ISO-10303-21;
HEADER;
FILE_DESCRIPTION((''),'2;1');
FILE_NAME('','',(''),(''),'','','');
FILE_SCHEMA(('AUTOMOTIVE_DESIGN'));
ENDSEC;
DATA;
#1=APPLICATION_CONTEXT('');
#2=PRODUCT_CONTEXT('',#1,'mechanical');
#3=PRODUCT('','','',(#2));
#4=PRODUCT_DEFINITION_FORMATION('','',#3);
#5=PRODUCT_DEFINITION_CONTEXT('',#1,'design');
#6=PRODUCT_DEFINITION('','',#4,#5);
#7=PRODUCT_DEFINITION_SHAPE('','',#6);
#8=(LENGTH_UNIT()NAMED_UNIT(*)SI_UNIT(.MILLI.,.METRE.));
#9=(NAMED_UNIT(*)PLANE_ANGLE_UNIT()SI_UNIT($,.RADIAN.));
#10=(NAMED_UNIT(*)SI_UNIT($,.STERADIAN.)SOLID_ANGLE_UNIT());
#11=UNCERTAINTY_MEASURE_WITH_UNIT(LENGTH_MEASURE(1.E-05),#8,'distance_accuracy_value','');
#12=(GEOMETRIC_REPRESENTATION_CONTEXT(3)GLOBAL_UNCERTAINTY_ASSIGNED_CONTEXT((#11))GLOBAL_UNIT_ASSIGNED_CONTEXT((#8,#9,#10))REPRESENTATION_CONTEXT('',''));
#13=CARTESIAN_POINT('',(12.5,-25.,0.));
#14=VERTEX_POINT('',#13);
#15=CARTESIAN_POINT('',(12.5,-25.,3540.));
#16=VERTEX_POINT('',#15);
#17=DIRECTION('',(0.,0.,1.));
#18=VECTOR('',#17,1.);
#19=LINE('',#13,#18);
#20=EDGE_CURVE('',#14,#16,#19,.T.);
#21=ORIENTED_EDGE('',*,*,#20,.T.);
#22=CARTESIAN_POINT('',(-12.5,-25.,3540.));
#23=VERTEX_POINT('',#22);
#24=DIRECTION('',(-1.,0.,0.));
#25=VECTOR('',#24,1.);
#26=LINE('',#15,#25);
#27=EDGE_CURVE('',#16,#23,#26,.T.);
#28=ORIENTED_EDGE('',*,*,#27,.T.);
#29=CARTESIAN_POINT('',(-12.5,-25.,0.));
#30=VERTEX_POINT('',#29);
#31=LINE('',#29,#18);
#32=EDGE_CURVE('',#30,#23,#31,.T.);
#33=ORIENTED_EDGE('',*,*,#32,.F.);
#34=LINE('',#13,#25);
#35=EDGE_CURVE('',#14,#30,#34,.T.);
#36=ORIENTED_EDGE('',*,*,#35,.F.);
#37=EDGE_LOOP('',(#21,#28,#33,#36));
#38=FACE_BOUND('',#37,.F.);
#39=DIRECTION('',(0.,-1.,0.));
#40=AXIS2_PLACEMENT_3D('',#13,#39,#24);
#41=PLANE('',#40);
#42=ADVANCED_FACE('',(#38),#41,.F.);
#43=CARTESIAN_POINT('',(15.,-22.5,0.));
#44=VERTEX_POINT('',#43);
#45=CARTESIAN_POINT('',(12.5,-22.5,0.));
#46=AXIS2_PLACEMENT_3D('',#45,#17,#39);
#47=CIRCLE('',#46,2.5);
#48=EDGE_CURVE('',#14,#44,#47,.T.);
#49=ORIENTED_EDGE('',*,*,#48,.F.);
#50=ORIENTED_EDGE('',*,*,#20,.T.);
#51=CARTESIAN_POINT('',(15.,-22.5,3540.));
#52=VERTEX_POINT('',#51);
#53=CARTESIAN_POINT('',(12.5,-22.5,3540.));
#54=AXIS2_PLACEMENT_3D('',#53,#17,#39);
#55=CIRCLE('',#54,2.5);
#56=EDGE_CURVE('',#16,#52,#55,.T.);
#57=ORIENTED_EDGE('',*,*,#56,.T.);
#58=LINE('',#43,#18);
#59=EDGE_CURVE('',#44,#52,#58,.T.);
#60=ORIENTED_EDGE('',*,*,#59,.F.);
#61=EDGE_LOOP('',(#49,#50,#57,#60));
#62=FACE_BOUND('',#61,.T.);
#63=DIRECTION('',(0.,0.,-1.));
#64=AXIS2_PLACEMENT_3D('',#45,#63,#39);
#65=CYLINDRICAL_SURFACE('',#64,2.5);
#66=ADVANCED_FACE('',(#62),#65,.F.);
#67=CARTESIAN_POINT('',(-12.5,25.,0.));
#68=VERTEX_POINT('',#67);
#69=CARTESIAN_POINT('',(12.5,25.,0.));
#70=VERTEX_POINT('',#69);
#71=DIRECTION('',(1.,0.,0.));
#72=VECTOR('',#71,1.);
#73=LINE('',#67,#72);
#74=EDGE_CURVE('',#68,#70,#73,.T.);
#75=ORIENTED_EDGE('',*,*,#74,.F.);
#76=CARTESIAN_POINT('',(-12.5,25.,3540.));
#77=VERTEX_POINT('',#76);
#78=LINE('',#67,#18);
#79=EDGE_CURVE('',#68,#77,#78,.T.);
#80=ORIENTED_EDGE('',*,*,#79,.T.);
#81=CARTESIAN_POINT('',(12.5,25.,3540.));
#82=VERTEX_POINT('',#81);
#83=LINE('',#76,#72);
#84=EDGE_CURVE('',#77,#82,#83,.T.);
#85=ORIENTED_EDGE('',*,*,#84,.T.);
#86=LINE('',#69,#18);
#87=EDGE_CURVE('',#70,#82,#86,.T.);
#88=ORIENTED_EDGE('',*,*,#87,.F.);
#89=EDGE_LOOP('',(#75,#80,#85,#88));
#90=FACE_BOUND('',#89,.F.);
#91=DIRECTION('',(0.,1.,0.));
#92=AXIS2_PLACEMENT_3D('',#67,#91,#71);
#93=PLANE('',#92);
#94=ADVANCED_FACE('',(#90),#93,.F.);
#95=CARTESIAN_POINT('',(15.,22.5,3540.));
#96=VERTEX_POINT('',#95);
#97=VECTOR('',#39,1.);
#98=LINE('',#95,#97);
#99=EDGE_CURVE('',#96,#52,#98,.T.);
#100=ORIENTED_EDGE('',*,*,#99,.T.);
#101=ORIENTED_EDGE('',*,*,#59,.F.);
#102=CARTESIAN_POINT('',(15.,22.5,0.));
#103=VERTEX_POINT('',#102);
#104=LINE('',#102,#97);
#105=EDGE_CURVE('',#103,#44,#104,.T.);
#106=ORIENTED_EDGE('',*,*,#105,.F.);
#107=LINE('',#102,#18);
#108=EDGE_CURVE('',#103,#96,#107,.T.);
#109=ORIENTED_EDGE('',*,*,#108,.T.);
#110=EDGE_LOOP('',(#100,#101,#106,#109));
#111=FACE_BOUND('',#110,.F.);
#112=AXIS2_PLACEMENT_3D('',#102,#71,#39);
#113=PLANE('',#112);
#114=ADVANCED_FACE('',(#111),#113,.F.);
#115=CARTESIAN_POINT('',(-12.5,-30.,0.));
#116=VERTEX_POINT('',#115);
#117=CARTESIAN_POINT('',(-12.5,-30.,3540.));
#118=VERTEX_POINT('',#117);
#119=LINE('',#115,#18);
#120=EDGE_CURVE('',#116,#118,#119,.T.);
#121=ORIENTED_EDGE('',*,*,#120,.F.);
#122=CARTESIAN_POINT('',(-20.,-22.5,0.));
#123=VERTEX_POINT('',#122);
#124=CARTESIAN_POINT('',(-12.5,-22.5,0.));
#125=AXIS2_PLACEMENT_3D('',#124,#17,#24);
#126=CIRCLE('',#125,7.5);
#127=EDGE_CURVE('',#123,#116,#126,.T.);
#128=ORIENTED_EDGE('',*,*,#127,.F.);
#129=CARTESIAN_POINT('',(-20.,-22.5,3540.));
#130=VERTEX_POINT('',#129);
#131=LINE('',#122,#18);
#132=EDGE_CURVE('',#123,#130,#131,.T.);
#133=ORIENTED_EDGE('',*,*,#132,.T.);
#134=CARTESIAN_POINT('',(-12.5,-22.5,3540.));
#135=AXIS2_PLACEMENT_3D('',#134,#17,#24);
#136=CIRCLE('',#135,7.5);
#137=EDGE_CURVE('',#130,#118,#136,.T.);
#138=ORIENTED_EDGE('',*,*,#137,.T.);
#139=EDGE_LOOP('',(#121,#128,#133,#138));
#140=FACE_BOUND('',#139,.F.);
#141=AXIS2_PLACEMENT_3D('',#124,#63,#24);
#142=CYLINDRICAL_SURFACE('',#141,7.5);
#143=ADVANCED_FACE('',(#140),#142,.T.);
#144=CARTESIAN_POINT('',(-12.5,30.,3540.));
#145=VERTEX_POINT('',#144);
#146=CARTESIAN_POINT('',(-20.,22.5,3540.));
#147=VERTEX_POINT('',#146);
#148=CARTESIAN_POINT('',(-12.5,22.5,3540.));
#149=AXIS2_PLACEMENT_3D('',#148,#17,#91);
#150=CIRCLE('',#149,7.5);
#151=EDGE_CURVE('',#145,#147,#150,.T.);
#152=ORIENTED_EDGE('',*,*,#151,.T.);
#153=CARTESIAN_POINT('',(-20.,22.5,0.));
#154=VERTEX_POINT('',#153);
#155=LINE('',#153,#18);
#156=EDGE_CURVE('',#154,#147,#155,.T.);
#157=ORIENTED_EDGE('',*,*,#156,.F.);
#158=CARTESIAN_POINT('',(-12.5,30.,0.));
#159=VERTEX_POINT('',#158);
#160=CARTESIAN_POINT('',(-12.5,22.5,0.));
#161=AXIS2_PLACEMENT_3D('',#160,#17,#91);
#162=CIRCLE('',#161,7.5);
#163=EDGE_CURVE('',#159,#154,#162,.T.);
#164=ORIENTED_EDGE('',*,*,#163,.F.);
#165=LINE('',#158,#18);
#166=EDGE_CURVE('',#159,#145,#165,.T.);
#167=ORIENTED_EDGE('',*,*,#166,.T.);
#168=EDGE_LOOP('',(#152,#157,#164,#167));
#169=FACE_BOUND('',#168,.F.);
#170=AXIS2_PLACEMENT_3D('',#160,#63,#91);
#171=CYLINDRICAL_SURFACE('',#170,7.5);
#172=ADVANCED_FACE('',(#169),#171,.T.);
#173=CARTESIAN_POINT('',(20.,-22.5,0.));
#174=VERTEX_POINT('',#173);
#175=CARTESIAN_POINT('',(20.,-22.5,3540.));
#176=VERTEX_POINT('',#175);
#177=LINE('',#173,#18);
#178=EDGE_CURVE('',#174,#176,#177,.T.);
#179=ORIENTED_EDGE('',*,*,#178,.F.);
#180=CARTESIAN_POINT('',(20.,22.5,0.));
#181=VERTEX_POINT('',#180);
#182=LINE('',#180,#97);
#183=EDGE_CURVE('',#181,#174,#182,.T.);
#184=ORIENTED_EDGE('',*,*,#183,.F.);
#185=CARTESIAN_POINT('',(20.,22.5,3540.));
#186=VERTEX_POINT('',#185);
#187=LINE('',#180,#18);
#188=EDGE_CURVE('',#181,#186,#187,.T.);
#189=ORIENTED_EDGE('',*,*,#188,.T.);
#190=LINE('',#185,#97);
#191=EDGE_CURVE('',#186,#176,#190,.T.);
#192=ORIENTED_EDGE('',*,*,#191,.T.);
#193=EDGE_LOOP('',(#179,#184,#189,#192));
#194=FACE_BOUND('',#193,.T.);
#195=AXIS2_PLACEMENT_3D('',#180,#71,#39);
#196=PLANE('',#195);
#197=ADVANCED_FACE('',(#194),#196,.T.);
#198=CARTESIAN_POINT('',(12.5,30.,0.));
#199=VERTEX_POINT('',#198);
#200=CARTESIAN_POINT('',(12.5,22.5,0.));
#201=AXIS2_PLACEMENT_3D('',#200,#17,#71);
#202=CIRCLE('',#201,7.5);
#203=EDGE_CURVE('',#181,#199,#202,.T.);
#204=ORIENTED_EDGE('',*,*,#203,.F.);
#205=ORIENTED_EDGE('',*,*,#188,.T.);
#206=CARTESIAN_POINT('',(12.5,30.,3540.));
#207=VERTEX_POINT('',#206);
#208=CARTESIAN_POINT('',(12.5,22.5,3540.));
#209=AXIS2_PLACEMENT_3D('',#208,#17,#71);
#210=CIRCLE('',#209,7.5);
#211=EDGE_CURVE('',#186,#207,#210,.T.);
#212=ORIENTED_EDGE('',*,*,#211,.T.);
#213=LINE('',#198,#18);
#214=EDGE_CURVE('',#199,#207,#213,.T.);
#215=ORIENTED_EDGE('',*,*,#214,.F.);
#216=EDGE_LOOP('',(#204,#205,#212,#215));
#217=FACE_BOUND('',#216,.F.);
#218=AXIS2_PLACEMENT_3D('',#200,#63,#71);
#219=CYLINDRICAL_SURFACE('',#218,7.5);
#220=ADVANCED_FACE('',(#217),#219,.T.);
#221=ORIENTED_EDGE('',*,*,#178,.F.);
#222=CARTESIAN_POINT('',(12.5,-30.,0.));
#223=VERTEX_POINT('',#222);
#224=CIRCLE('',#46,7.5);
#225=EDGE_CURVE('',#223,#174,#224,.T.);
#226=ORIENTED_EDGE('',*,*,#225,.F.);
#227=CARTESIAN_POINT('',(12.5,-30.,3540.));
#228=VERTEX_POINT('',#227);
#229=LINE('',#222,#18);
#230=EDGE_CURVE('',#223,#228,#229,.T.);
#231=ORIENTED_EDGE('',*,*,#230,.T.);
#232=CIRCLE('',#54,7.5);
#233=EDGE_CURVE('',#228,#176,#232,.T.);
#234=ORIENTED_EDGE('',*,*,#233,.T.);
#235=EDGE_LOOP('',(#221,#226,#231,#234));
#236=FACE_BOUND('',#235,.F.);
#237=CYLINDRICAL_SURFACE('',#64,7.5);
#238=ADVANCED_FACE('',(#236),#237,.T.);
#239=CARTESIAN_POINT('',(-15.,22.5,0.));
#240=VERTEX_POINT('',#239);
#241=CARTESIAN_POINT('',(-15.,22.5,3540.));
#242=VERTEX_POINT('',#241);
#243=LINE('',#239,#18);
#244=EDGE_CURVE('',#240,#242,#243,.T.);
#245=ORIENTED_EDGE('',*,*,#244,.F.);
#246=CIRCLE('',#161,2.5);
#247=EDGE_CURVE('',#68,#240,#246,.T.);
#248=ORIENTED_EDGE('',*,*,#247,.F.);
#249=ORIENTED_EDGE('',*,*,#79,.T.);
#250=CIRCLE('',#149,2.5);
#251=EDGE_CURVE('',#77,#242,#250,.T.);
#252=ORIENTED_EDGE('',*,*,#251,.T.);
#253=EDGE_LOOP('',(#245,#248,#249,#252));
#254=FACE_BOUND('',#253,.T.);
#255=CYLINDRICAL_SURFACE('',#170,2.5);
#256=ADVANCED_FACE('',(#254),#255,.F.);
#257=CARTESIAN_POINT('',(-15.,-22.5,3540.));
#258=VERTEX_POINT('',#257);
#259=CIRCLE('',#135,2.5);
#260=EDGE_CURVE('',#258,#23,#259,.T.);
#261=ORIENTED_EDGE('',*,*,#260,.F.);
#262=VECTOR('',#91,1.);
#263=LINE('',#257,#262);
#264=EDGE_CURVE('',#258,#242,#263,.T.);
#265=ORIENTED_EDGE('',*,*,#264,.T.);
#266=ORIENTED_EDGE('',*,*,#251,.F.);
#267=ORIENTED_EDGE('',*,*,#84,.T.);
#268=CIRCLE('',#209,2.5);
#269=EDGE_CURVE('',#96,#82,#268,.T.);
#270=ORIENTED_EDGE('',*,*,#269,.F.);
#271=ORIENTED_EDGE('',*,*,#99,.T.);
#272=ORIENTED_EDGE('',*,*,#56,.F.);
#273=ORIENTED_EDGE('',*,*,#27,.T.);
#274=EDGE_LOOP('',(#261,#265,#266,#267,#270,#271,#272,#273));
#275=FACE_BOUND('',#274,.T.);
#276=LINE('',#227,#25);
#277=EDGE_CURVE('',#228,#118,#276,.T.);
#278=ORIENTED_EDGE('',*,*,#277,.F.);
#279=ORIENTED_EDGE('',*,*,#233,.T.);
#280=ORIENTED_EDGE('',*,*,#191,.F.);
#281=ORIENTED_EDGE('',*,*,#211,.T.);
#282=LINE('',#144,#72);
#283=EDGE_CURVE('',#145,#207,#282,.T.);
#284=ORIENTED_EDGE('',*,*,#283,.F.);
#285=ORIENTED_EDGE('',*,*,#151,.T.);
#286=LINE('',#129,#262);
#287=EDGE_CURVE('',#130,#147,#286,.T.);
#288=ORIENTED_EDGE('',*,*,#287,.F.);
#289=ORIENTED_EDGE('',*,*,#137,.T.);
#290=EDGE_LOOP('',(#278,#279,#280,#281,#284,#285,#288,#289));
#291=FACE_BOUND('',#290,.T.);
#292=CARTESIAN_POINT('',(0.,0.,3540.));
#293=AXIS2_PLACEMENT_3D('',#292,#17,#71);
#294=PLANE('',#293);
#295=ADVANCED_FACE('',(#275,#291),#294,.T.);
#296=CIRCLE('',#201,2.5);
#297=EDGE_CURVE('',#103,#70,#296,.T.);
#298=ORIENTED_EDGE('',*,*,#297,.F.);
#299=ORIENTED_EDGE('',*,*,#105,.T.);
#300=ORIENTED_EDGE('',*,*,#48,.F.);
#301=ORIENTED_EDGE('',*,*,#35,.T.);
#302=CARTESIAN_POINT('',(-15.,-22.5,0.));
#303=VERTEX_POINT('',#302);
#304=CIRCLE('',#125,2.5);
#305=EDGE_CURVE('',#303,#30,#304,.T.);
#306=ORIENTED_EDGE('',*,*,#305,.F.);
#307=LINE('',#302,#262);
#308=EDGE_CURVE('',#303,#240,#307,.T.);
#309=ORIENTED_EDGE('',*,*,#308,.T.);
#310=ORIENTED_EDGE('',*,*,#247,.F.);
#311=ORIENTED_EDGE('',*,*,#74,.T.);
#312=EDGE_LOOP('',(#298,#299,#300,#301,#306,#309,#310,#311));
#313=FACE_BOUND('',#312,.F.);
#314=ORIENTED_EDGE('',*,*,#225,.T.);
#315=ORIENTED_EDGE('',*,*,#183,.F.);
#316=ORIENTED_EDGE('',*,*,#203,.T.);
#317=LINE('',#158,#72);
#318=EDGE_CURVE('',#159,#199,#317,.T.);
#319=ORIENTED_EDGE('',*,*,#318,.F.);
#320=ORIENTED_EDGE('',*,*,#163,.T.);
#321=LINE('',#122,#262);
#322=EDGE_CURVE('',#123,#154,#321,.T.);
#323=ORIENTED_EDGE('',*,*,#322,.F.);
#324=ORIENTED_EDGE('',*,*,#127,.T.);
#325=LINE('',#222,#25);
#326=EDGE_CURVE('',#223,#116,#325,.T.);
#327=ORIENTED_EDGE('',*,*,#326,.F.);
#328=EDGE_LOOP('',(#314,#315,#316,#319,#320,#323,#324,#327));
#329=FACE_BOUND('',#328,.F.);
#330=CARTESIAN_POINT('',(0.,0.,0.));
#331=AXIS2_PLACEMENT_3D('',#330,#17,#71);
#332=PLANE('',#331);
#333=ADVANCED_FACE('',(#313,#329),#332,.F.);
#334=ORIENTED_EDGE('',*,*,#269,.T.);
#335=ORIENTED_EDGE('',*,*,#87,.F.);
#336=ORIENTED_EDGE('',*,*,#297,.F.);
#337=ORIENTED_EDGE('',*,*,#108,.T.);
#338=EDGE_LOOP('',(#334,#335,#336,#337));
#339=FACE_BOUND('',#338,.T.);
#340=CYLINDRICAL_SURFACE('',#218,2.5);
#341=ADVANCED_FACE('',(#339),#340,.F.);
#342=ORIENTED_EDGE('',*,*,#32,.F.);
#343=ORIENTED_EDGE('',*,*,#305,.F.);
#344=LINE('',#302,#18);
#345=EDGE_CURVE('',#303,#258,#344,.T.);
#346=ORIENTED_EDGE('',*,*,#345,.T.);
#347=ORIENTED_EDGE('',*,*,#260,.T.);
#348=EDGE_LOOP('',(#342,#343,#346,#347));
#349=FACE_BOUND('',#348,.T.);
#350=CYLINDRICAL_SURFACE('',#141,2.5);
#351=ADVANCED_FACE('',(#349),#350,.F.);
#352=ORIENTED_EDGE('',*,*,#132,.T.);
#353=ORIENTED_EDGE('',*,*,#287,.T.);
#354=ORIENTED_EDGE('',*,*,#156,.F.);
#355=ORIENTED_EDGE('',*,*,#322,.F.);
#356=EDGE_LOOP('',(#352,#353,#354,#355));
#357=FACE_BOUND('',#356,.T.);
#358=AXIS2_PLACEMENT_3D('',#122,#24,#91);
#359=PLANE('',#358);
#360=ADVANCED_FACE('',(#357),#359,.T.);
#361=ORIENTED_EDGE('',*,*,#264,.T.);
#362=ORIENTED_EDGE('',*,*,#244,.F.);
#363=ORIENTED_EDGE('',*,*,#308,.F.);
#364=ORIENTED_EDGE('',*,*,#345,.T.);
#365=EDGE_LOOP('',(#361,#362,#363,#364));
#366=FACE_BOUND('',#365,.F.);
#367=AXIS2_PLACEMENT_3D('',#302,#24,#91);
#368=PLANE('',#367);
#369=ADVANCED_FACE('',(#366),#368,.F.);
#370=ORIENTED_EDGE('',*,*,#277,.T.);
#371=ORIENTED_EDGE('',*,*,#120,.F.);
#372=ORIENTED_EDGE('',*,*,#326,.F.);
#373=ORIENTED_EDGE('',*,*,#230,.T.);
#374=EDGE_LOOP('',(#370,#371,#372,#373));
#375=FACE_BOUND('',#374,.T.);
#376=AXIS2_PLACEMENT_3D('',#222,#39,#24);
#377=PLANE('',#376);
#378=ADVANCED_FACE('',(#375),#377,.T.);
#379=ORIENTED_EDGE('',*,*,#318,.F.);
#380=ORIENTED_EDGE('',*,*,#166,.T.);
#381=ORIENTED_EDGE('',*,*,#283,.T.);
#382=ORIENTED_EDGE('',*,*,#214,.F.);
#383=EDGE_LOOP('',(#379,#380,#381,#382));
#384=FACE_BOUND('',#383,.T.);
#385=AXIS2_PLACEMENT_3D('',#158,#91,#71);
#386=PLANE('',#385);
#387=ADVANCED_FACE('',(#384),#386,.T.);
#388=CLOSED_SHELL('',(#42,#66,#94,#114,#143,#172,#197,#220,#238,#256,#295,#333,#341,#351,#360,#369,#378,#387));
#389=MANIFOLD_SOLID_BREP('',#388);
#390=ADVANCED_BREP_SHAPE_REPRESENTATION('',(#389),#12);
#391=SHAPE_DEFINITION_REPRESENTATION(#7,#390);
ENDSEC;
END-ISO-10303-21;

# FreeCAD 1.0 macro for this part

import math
import FreeCAD as App
import Part
import Sketcher
Q = App.Units.Quantity

doc = App.newDocument("Part")
body = doc.addObject("PartDesign::Body", "Body")

# Sketch on XY plane
sketch1 = body.newObject("Sketcher::SketchObject", "Sketch")
sketch1.AttachmentSupport = (doc.getObject("XY_Plane"), [""])
sketch1.MapMode = "FlatFace"
sketch1.addGeometry(Part.LineSegment(App.Vector(-20, 22.5, 0), App.Vector(-20, -22.5, 0)), False)
sketch1.addGeometry(Part.ArcOfCircle(Part.Circle(App.Vector(-12.5, -22.5, 0), App.Vector(0, 0, 1), 7.5), math.radians(180), math.radians(270)), False)
sketch1.addGeometry(Part.LineSegment(App.Vector(-12.5, -30, 0), App.Vector(12.5, -30, 0)), False)
sketch1.addGeometry(Part.ArcOfCircle(Part.Circle(App.Vector(12.5, -22.5, 0), App.Vector(0, 0, 1), 7.5), math.radians(-90), math.radians(0)), False)
sketch1.addGeometry(Part.LineSegment(App.Vector(20, -22.5, 0), App.Vector(20, 22.5, 0)), False)
sketch1.addGeometry(Part.ArcOfCircle(Part.Circle(App.Vector(12.5, 22.5, 0), App.Vector(0, 0, 1), 7.5), math.radians(0), math.radians(90)), False)
sketch1.addGeometry(Part.LineSegment(App.Vector(12.5, 30, 0), App.Vector(-12.5, 30, 0)), False)
sketch1.addGeometry(Part.ArcOfCircle(Part.Circle(App.Vector(-12.5, 22.5, 0), App.Vector(0, 0, 1), 7.5), math.radians(90), math.radians(180)), False)
sketch1.addGeometry(Part.ArcOfCircle(Part.Circle(App.Vector(-12.5, 22.5, 0), App.Vector(0, 0, 1), 2.5), math.radians(90), math.radians(180)), False)
sketch1.addGeometry(Part.LineSegment(App.Vector(-12.5, 25, 0), App.Vector(12.5, 25, 0)), False)
sketch1.addGeometry(Part.ArcOfCircle(Part.Circle(App.Vector(12.5, 22.5, 0), App.Vector(0, 0, 1), 2.5), math.radians(0), math.radians(90)), False)
sketch1.addGeometry(Part.LineSegment(App.Vector(15, 22.5, 0), App.Vector(15, -22.5, 0)), False)
sketch1.addGeometry(Part.ArcOfCircle(Part.Circle(App.Vector(12.5, -22.5, 0), App.Vector(0, 0, 1), 2.5), math.radians(-90), math.radians(0)), False)
sketch1.addGeometry(Part.LineSegment(App.Vector(12.5, -25, 0), App.Vector(-12.5, -25, 0)), False)
sketch1.addGeometry(Part.ArcOfCircle(Part.Circle(App.Vector(-12.5, -22.5, 0), App.Vector(0, 0, 1), 2.5), math.radians(180), math.radians(270)), False)
sketch1.addGeometry(Part.LineSegment(App.Vector(-15, -22.5, 0), App.Vector(-15, 22.5, 0)), False)
sketch1.addConstraint(Sketcher.Constraint("Tangent", 0, 2, 1, 1))
sketch1.addConstraint(Sketcher.Constraint("Tangent", 1, 2, 2, 1))
sketch1.addConstraint(Sketcher.Constraint("Tangent", 2, 2, 3, 1))
sketch1.addConstraint(Sketcher.Constraint("Tangent", 3, 2, 4, 1))
sketch1.addConstraint(Sketcher.Constraint("Tangent", 4, 2, 5, 1))
sketch1.addConstraint(Sketcher.Constraint("Tangent", 5, 2, 6, 1))
sketch1.addConstraint(Sketcher.Constraint("Tangent", 6, 2, 7, 1))
sketch1.addConstraint(Sketcher.Constraint("Tangent", 7, 2, 0, 1))
sketch1.addConstraint(Sketcher.Constraint("Tangent", 8, 1, 9, 1))
sketch1.addConstraint(Sketcher.Constraint("Tangent", 9, 2, 10, 2))
sketch1.addConstraint(Sketcher.Constraint("Tangent", 10, 1, 11, 1))
sketch1.addConstraint(Sketcher.Constraint("Tangent", 11, 2, 12, 2))
sketch1.addConstraint(Sketcher.Constraint("Tangent", 12, 1, 13, 1))
sketch1.addConstraint(Sketcher.Constraint("Tangent", 13, 2, 14, 2))
sketch1.addConstraint(Sketcher.Constraint("Tangent", 14, 1, 15, 1))
sketch1.addConstraint(Sketcher.Constraint("Tangent", 15, 2, 8, 2))
sketch1.addConstraint(Sketcher.Constraint("Vertical", 0))
sketch1.addConstraint(Sketcher.Constraint("Horizontal", 2))
sketch1.addConstraint(Sketcher.Constraint("Vertical", 4))
sketch1.addConstraint(Sketcher.Constraint("Horizontal", 6))
sketch1.addConstraint(Sketcher.Constraint("Horizontal", 9))
sketch1.addConstraint(Sketcher.Constraint("Vertical", 11))
sketch1.addConstraint(Sketcher.Constraint("Horizontal", 13))
sketch1.addConstraint(Sketcher.Constraint("Vertical", 15))
sketch1.addConstraint(Sketcher.Constraint("Coincident", 8, 3, 7, 3))
sketch1.addConstraint(Sketcher.Constraint("Coincident", 10, 3, 5, 3))
sketch1.addConstraint(Sketcher.Constraint("Coincident", 12, 3, 3, 3))
sketch1.addConstraint(Sketcher.Constraint("Equal", 1, 3))
sketch1.addConstraint(Sketcher.Constraint("Equal", 3, 5))
sketch1.addConstraint(Sketcher.Constraint("Equal", 5, 7))
sketch1.addConstraint(Sketcher.Constraint("Equal", 12, 14))
sketch1.addConstraint(Sketcher.Constraint("Symmetric", 1, 3, 5, 3, -1, 1))
sketch1.addConstraint(Sketcher.Constraint("Radius", 1, Q("7.5 mm")))
sketch1.addConstraint(Sketcher.Constraint("Radius", 8, Q("2.5 mm")))
sketch1.addConstraint(Sketcher.Constraint("DistanceX", 0, 2, -1, 1, Q("20 mm")))
sketch1.addConstraint(Sketcher.Constraint("DistanceY", 1, 2, -1, 1, Q("30 mm")))
pad1 = body.newObject("PartDesign::Pad", "Pad")
pad1.Profile = sketch1
pad1.Length = 3540

doc.recompute()
